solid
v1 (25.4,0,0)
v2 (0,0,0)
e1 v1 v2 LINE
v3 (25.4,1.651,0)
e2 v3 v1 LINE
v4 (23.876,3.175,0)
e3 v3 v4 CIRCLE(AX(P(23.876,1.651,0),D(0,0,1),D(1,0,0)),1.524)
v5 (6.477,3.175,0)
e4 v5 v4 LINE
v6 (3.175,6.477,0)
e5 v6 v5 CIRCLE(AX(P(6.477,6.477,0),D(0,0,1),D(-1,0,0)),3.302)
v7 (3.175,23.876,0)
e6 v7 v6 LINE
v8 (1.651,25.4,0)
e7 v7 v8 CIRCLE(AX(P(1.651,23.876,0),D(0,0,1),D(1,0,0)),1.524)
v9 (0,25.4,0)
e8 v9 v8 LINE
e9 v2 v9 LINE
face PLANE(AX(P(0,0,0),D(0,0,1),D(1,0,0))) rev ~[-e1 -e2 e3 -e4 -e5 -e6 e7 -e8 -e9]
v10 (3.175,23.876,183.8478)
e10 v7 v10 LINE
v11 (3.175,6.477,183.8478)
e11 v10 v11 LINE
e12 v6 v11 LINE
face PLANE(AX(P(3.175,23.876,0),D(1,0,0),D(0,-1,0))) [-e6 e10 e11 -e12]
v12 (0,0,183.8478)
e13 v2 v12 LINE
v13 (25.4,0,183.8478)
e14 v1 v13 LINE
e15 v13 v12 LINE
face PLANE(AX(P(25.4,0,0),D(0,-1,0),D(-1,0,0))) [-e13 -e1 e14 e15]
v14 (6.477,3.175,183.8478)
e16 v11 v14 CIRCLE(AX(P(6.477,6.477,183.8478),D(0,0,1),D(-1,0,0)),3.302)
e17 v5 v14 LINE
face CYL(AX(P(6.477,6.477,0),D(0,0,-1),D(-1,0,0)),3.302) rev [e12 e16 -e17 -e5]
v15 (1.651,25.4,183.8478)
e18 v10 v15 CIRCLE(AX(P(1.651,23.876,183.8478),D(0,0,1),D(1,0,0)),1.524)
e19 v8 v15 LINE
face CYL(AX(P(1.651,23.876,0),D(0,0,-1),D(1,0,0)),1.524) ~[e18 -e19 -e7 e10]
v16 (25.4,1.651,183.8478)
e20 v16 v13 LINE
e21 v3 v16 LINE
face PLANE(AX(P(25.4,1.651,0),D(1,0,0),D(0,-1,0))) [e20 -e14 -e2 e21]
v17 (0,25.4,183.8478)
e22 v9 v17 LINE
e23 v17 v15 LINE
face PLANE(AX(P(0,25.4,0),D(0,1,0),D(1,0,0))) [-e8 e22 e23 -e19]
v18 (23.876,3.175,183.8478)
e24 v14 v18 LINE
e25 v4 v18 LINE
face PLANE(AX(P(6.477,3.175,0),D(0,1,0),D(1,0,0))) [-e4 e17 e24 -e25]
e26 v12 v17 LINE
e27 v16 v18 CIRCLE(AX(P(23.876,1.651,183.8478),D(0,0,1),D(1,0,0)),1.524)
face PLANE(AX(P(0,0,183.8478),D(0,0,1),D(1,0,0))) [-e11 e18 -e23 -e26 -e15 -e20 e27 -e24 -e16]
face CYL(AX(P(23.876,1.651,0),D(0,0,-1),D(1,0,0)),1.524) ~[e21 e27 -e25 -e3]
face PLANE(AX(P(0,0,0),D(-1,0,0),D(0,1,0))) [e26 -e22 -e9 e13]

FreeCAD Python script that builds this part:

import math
import FreeCAD as App
import Part
import Sketcher
from FreeCAD import Vector
Q = App.Units.Quantity

doc = App.newDocument("Part")
body = doc.addObject("PartDesign::Body", "Body")

# Sketch on XY plane
sketch1 = body.newObject("Sketcher::SketchObject", "Sketch")
sketch1.AttachmentSupport = (doc.getObject("XY_Plane"), [""])
sketch1.MapMode = "FlatFace"
sketch1.addGeometry([
    Part.LineSegment(Vector(0, 0, 0), Vector(25.4, 0, 0)),  # 0
    Part.LineSegment(Vector(25.4, 0, 0), Vector(25.4, 1.7, 0)),  # 1
    Part.ArcOfCircle(Part.Circle(Vector(23.9, 1.7, 0), Vector(0, 0, 1), 1.5), math.radians(0), math.radians(90)),  # 2
    Part.LineSegment(Vector(23.9, 3.2, 0), Vector(6.5, 3.2, 0)),  # 3
    Part.ArcOfCircle(Part.Circle(Vector(6.5, 6.5, 0), Vector(0, 0, 1), 3.3), math.radians(180), math.radians(270)),  # 4
    Part.LineSegment(Vector(3.2, 6.5, 0), Vector(3.2, 23.9, 0)),  # 5
    Part.ArcOfCircle(Part.Circle(Vector(1.7, 23.9, 0), Vector(0, 0, 1), 1.5), math.radians(0), math.radians(90)),  # 6
    Part.LineSegment(Vector(1.7, 25.4, 0), Vector(0, 25.4, 0)),  # 7
    Part.LineSegment(Vector(0, 25.4, 0), Vector(0, 0, 0)),  # 8
], False)
sketch1.addConstraint([
    Sketcher.Constraint("Coincident", 0, 2, 1, 1),
    Sketcher.Constraint("Tangent", 1, 2, 2, 1),
    Sketcher.Constraint("Tangent", 2, 2, 3, 1),
    Sketcher.Constraint("Tangent", 3, 2, 4, 2),
    Sketcher.Constraint("Tangent", 4, 1, 5, 1),
    Sketcher.Constraint("Tangent", 5, 2, 6, 1),
    Sketcher.Constraint("Tangent", 6, 2, 7, 1),
    Sketcher.Constraint("Coincident", 7, 2, 8, 1),
    Sketcher.Constraint("Coincident", 8, 2, 0, 1),
    Sketcher.Constraint("Horizontal", 0),
    Sketcher.Constraint("Vertical", 1),
    Sketcher.Constraint("Horizontal", 3),
    Sketcher.Constraint("Vertical", 5),
    Sketcher.Constraint("Horizontal", 7),
    Sketcher.Constraint("Vertical", 8),
    Sketcher.Constraint("Coincident", 8, 2, -1, 1),
    Sketcher.Constraint("Equal", 2, 6),
    Sketcher.Constraint("Equal", 7, 1),
    Sketcher.Constraint("Equal", 3, 5),
    Sketcher.Constraint("DistanceX", 0, 1, 0, 2, Q("1 in")),
    Sketcher.Constraint("Radius", 2, Q("0.06 in")),
    Sketcher.Constraint("Radius", 4, Q("0.13 in")),
    Sketcher.Constraint("DistanceY", -1, 1, 2, 2, Q("0.125 in")),
])
pad1 = body.newObject("PartDesign::Pad", "Pad")
pad1.Profile = sketch1
pad1.Length = Q("7.2381024 in")

doc.recompute()
